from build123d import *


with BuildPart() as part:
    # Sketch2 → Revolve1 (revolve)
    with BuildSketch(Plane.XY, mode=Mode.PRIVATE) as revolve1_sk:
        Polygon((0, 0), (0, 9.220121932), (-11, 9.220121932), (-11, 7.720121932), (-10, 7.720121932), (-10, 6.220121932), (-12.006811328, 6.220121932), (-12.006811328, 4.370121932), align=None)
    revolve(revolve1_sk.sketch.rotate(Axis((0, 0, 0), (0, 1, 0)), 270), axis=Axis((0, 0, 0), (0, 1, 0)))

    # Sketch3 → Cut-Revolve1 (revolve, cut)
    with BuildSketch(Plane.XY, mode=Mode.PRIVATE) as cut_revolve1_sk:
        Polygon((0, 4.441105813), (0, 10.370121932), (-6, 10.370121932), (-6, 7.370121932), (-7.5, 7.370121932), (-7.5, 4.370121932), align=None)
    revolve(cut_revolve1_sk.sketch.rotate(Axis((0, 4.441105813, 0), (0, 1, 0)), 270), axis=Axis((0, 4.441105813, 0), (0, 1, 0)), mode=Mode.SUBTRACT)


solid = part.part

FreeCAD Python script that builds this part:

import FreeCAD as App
import Part
import Sketcher
Q = App.Units.Quantity


def add_polygon(sketch, points):
    """Adds a closed chain of lines whose ends are joined by coincident constraints."""
    first, n = sketch.GeometryCount, len(points)
    for a, b in zip(points, points[1:] + points[:1]):
        sketch.addGeometry(Part.LineSegment(App.Vector(*a, 0), App.Vector(*b, 0)), False)
    for i in range(n):
        sketch.addConstraint(Sketcher.Constraint("Coincident", first + i, 2, first + (i + 1) % n, 1))

doc = App.newDocument("Part")
body = doc.addObject("PartDesign::Body", "Body")

# Sketch on XY plane
sketch1 = body.newObject("Sketcher::SketchObject", "Sketch")
sketch1.AttachmentSupport = (doc.getObject("XY_Plane"), [""])
sketch1.MapMode = "FlatFace"
add_polygon(sketch1, [(0, 0), (0, 9.2), (-11, 9.2), (-11, 7.7), (-10, 7.7), (-10, 6.2), (-12, 6.2), (-12, 4.4)])  # lines 0-7
sketch1.addConstraint(Sketcher.Constraint("Vertical", 0))
sketch1.addConstraint(Sketcher.Constraint("Horizontal", 1))
sketch1.addConstraint(Sketcher.Constraint("Vertical", 2))
sketch1.addConstraint(Sketcher.Constraint("Horizontal", 3))
sketch1.addConstraint(Sketcher.Constraint("Vertical", 4))
sketch1.addConstraint(Sketcher.Constraint("Horizontal", 5))
sketch1.addConstraint(Sketcher.Constraint("Vertical", 6))
sketch1.addConstraint(Sketcher.Constraint("Coincident", 7, 2, -1, 1))
sketch1.addConstraint(Sketcher.Constraint("Equal", 2, 4))
sketch1.addConstraint(Sketcher.Constraint("DistanceX", 1, 2, 1, 1, 11.0))
sketch1.addConstraint(Sketcher.Constraint("DistanceX", 3, 1, 3, 2, 1.0))
sketch1.addConstraint(Sketcher.Constraint("Angle", 7, Q("-20 deg")))
sketch1.addConstraint(Sketcher.Constraint("DistanceY", 2, 2, 2, 1, 1.5))
sketch1.addConstraint(Sketcher.Constraint("DistanceY", 6, 2, 6, 1, 1.85))
sketch1.addConstraint(Sketcher.Constraint("DistanceX", 5, 2, 5, 1, 2.006811))
revolution = body.newObject("PartDesign::Revolution", "Revolution")
revolution.Profile = sketch1
revolution.ReferenceAxis = (sketch1, ["V_Axis"])
revolution.Angle = 360

# Sketch on XY plane
sketch2 = body.newObject("Sketcher::SketchObject", "Sketch001")
sketch2.AttachmentSupport = (doc.getObject("XY_Plane"), [""])
sketch2.MapMode = "FlatFace"
add_polygon(sketch2, [(0, 4.4), (0, 10.4), (-6, 10.4), (-6, 7.4), (-7.5, 7.4), (-7.5, 4.4)])  # lines 0-5
sketch2.addConstraint(Sketcher.Constraint("Vertical", 0))
sketch2.addConstraint(Sketcher.Constraint("Horizontal", 1))
sketch2.addConstraint(Sketcher.Constraint("Vertical", 2))
sketch2.addConstraint(Sketcher.Constraint("Horizontal", 3))
sketch2.addConstraint(Sketcher.Constraint("Vertical", 4))
sketch2.addConstraint(Sketcher.Constraint("PointOnObject", 0, 2, -2))
sketch2.addConstraint(Sketcher.Constraint("Equal", 2, 4))
sketch2.addConstraint(Sketcher.Constraint("DistanceX", 1, 2, 1, 1, 6.0))
sketch2.addConstraint(Sketcher.Constraint("DistanceY", 2, 2, 2, 1, 3.0))
sketch2.addConstraint(Sketcher.Constraint("DistanceX", 3, 2, 3, 1, 1.5))
sketch2.addConstraint(Sketcher.Constraint("DistanceY", 0, 1, 0, 2, 5.929016))
sketch2.addConstraint(Sketcher.Constraint("DistanceY", -1, 1, 0, 2, 10.370122))
groove = body.newObject("PartDesign::Groove", "Groove")
groove.Profile = sketch2
groove.ReferenceAxis = (sketch2, ["V_Axis"])
groove.Angle = 360

doc.recompute()
